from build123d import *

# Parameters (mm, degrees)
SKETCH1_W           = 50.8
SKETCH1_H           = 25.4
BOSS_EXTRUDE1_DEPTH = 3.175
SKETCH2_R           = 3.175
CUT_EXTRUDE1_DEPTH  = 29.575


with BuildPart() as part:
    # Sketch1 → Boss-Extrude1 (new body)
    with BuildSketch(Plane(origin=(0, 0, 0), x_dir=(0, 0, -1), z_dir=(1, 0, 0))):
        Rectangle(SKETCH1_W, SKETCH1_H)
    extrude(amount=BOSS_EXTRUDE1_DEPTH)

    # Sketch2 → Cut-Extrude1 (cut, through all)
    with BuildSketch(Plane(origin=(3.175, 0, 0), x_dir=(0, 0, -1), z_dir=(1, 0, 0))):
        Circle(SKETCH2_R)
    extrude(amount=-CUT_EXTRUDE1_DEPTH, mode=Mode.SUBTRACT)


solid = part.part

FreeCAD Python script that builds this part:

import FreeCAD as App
import Part
import Sketcher
from FreeCAD import Vector
Q = App.Units.Quantity


def add_polygon(sketch, points):
    """Adds a closed chain of lines whose ends are joined by coincident constraints."""
    first, n = sketch.GeometryCount, len(points)
    for a, b in zip(points, points[1:] + points[:1]):
        sketch.addGeometry(Part.LineSegment(App.Vector(*a, 0), App.Vector(*b, 0)), False)
    for i in range(n):
        sketch.addConstraint(Sketcher.Constraint("Coincident", first + i, 2, first + (i + 1) % n, 1))

doc = App.newDocument("Part")
params = doc.addObject("Spreadsheet::Sheet", "Params")
for row, (alias, value) in enumerate([
    ("sketch1_width", "1 in"),
    ("sketch1_height", "2 in"),
    ("pad1_length", "0.125 in"),
    ("sketch2_diameter", "0.25 in"),
], start=1):
    params.set(f"A{row}", alias)
    params.set(f"B{row}", "=" + value)
    params.setAlias(f"B{row}", alias)

body = doc.addObject("PartDesign::Body", "Body")

sketch1 = body.newObject("Sketcher::SketchObject", "Sketch")
sketch1.AttachmentSupport = (doc.getObject("YZ_Plane"), [""])
sketch1.MapMode = "FlatFace"
add_polygon(sketch1, [(13, 25), (-13, 25), (-13, -25), (13, -25)])
sketch1.addConstraint([
    Sketcher.Constraint("Horizontal", 0),
    Sketcher.Constraint("Vertical", 1),
    Sketcher.Constraint("Horizontal", 2),
    Sketcher.Constraint("Vertical", 3),
    Sketcher.Constraint("Symmetric", 0, 2, 2, 2, -1, 1),
    Sketcher.Constraint("DistanceX", 0, 2, 0, 1, Q("1 in")),
    Sketcher.Constraint("DistanceY", 1, 2, 1, 1, Q("2 in")),
])
sketch1.setExpression("Constraints[9]", "Params.sketch1_width")
sketch1.setExpression("Constraints[10]", "Params.sketch1_height")
pad1 = body.newObject("PartDesign::Pad", "Pad")
pad1.Profile = sketch1
pad1.setExpression("Length", "Params.pad1_length")

sketch2 = body.newObject("Sketcher::SketchObject", "Sketch001")
sketch2.AttachmentSupport = (doc.getObject("YZ_Plane"), [""])
sketch2.MapMode = "FlatFace"
sketch2.AttachmentOffset = App.Placement(Vector(0, 0, 0.125 * 25.4), App.Rotation())
sketch2.addGeometry(Part.Circle(Vector(0, 0, 0), Vector(0, 0, 1), 3.2), False)
sketch2.addConstraint([
    Sketcher.Constraint("Coincident", 0, 3, -1, 1),
    Sketcher.Constraint("Diameter", 0, Q("0.25 in")),
])
sketch2.setExpression("Constraints[1]", "Params.sketch2_diameter")
pocket1 = body.newObject("PartDesign::Pocket", "Pocket")
pocket1.Profile = sketch2
pocket1.Type = "ThroughAll"

doc.recompute()
